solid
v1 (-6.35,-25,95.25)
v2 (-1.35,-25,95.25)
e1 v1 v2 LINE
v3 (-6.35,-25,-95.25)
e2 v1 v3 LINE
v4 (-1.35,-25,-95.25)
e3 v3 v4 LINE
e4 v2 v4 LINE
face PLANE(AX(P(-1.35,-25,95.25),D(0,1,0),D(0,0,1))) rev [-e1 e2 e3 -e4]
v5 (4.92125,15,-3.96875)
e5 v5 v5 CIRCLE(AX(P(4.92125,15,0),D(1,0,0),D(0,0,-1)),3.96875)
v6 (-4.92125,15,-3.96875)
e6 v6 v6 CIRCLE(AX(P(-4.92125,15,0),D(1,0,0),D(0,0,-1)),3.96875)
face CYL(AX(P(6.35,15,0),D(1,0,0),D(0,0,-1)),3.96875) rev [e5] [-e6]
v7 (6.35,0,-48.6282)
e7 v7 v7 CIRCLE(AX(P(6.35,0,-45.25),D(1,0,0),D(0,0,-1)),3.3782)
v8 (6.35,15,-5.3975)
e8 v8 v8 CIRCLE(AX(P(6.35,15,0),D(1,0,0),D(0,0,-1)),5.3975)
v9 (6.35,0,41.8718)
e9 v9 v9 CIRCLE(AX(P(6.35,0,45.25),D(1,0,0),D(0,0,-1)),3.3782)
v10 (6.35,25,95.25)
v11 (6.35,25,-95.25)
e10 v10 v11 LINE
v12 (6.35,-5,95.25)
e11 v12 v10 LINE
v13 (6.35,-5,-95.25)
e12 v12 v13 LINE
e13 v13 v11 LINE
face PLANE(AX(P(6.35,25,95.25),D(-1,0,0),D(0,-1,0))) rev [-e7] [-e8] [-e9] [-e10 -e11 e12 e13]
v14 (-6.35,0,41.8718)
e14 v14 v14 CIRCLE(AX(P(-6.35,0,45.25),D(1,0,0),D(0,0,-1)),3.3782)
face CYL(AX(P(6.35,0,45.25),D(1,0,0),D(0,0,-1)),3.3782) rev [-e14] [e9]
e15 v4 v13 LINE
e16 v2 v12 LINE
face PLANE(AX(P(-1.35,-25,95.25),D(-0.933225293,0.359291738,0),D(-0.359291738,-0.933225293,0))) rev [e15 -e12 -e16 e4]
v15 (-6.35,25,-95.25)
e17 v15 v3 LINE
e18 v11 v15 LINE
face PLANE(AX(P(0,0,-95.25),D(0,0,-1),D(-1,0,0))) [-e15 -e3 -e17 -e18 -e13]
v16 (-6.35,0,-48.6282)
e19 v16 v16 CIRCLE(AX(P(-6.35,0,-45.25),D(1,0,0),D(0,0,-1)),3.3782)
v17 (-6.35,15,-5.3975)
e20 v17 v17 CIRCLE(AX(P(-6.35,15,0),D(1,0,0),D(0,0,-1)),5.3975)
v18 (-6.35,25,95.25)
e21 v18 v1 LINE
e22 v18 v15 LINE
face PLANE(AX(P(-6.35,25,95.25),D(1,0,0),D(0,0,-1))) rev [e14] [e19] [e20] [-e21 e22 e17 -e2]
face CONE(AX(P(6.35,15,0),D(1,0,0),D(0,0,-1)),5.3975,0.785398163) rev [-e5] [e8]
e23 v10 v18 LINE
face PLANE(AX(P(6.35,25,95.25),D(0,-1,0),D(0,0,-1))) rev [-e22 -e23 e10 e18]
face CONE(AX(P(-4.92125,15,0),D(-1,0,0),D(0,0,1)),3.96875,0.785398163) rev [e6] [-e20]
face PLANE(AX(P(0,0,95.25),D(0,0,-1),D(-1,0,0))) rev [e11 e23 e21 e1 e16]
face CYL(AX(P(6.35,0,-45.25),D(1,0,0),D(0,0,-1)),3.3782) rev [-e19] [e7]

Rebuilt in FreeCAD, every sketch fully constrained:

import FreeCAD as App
import Part
import Sketcher

V = App.Vector

doc = App.newDocument("Part")
body = doc.addObject("PartDesign::Body", "Body")

sketch1 = doc.addObject("Sketcher::SketchObject", "Sketch")
body.addObject(sketch1)
sketch1.AttachmentSupport = (doc.XY_Plane, [""])
sketch1.MapMode = "FlatFace"
sketch1.addGeometry([
    Part.LineSegment(V(-1.35, -25, 0), V(6.35, -5, 0)),
    Part.LineSegment(V(6.35, -5, 0), V(6.35, 25, 0)),
    Part.LineSegment(V(6.35, 25, 0), V(-6.35, 25, 0)),
    Part.LineSegment(V(-6.35, 25, 0), V(-6.35, -25, 0)),
    Part.LineSegment(V(-6.35, -25, 0), V(-1.35, -25, 0)),
], False)
sketch1.addConstraint([
    Sketcher.Constraint("Coincident", 0, 2, 1, 1),
    Sketcher.Constraint("Coincident", 1, 2, 2, 1),
    Sketcher.Constraint("Coincident", 2, 2, 3, 1),
    Sketcher.Constraint("Coincident", 3, 2, 4, 1),
    Sketcher.Constraint("Coincident", 4, 2, 0, 1),
    Sketcher.Constraint("Vertical", 1),
    Sketcher.Constraint("Horizontal", 2),
    Sketcher.Constraint("Vertical", 3),
    Sketcher.Constraint("Horizontal", 4),
    Sketcher.Constraint("Symmetric", 1, 2, 3, 2, -1, 1),
    Sketcher.Constraint("DistanceX", 4, 1, 4, 2, 5.0),
    Sketcher.Constraint("DistanceY", 1, 1, 1, 2, 30.0),
    Sketcher.Constraint("DistanceY", 3, 2, 3, 1, 50.0),
    Sketcher.Constraint("DistanceX", 2, 2, 2, 1, 12.7),
])
pad1 = doc.addObject("PartDesign::Pad", "Pad")
body.addObject(pad1)
pad1.Profile = sketch1
pad1.Length = 190.5
pad1.Midplane = True

sketch2 = doc.addObject("Sketcher::SketchObject", "Sketch001")
body.addObject(sketch2)
sketch2.AttachmentSupport = (doc.YZ_Plane, [""])
sketch2.MapMode = "FlatFace"
sketch2.AttachmentOffset = App.Placement(V(0, 0, 6.35), App.Rotation())
sketch2.addGeometry([
    Part.Circle(V(0, 45.25, 0), V(0, 0, 1), 3.3782),
    Part.Circle(V(0, -45.25, 0), V(0, 0, 1), 3.3782),
], False)
sketch2.addConstraint([
    Sketcher.Constraint("Equal", 0, 1),
    Sketcher.Constraint("Symmetric", 0, 3, 1, 3, -1, 1),
    Sketcher.Constraint("PointOnObject", 0, 3, -2),
    Sketcher.Constraint("Diameter", 0, 6.7564),
    Sketcher.Constraint("DistanceY", 1, 3, 0, 3, 90.5),
])
doc.recompute()
hole = doc.addObject("PartDesign::Hole", "Hole")
body.addObject(hole)
hole.Profile = sketch2
hole.ThreadType = "None"
hole.Diameter = 6.7564
hole.DepthType = "ThroughAll"

sketch3 = doc.addObject("Sketcher::SketchObject", "Sketch002")
body.addObject(sketch3)
sketch3.AttachmentSupport = (doc.XZ_Plane, [""])
sketch3.MapMode = "FlatFace"
sketch3.AttachmentOffset = App.Placement(V(0, 0, -15), App.Rotation())
sketch3.addGeometry([
    Part.LineSegment(V(-6.35, 0, 0), V(6.35, 0, 0)),
    Part.LineSegment(V(6.35, 0, 0), V(6.35, -5.3975, 0)),
    Part.LineSegment(V(6.35, -5.3975, 0), V(4.92125, -3.96875, 0)),
    Part.LineSegment(V(4.92125, -3.96875, 0), V(-4.92125, -3.96875, 0)),
    Part.LineSegment(V(-4.92125, -3.96875, 0), V(-6.35, -5.3975, 0)),
    Part.LineSegment(V(-6.35, -5.3975, 0), V(-6.35, 0, 0)),
], False)
sketch3.addConstraint([
    Sketcher.Constraint("Coincident", 0, 2, 1, 1),
    Sketcher.Constraint("Coincident", 1, 2, 2, 1),
    Sketcher.Constraint("Coincident", 2, 2, 3, 1),
    Sketcher.Constraint("Coincident", 3, 2, 4, 1),
    Sketcher.Constraint("Coincident", 4, 2, 5, 1),
    Sketcher.Constraint("Coincident", 5, 2, 0, 1),
    Sketcher.Constraint("Horizontal", 0),
    Sketcher.Constraint("Vertical", 1),
    Sketcher.Constraint("Horizontal", 3),
    Sketcher.Constraint("Vertical", 5),
    Sketcher.Constraint("Symmetric", 0, 2, 5, 2, -1, 1),
    Sketcher.Constraint("Perpendicular", 2, 4),
    Sketcher.Constraint("Horizontal", 1, 2, 4, 2),
    Sketcher.Constraint("Equal", 2, 4),
    Sketcher.Constraint("DistanceX", 0, 1, 0, 2, 12.7),
    Sketcher.Constraint("DistanceX", 3, 2, 3, 1, 9.8425),
    Sketcher.Constraint("DistanceY", 1, 2, 1, 1, 5.3975),
])
groove = doc.addObject("PartDesign::Groove", "Groove")
body.addObject(groove)
groove.Profile = sketch3
groove.ReferenceAxis = (sketch3, ["H_Axis"])
groove.Angle = 360

doc.recompute()
